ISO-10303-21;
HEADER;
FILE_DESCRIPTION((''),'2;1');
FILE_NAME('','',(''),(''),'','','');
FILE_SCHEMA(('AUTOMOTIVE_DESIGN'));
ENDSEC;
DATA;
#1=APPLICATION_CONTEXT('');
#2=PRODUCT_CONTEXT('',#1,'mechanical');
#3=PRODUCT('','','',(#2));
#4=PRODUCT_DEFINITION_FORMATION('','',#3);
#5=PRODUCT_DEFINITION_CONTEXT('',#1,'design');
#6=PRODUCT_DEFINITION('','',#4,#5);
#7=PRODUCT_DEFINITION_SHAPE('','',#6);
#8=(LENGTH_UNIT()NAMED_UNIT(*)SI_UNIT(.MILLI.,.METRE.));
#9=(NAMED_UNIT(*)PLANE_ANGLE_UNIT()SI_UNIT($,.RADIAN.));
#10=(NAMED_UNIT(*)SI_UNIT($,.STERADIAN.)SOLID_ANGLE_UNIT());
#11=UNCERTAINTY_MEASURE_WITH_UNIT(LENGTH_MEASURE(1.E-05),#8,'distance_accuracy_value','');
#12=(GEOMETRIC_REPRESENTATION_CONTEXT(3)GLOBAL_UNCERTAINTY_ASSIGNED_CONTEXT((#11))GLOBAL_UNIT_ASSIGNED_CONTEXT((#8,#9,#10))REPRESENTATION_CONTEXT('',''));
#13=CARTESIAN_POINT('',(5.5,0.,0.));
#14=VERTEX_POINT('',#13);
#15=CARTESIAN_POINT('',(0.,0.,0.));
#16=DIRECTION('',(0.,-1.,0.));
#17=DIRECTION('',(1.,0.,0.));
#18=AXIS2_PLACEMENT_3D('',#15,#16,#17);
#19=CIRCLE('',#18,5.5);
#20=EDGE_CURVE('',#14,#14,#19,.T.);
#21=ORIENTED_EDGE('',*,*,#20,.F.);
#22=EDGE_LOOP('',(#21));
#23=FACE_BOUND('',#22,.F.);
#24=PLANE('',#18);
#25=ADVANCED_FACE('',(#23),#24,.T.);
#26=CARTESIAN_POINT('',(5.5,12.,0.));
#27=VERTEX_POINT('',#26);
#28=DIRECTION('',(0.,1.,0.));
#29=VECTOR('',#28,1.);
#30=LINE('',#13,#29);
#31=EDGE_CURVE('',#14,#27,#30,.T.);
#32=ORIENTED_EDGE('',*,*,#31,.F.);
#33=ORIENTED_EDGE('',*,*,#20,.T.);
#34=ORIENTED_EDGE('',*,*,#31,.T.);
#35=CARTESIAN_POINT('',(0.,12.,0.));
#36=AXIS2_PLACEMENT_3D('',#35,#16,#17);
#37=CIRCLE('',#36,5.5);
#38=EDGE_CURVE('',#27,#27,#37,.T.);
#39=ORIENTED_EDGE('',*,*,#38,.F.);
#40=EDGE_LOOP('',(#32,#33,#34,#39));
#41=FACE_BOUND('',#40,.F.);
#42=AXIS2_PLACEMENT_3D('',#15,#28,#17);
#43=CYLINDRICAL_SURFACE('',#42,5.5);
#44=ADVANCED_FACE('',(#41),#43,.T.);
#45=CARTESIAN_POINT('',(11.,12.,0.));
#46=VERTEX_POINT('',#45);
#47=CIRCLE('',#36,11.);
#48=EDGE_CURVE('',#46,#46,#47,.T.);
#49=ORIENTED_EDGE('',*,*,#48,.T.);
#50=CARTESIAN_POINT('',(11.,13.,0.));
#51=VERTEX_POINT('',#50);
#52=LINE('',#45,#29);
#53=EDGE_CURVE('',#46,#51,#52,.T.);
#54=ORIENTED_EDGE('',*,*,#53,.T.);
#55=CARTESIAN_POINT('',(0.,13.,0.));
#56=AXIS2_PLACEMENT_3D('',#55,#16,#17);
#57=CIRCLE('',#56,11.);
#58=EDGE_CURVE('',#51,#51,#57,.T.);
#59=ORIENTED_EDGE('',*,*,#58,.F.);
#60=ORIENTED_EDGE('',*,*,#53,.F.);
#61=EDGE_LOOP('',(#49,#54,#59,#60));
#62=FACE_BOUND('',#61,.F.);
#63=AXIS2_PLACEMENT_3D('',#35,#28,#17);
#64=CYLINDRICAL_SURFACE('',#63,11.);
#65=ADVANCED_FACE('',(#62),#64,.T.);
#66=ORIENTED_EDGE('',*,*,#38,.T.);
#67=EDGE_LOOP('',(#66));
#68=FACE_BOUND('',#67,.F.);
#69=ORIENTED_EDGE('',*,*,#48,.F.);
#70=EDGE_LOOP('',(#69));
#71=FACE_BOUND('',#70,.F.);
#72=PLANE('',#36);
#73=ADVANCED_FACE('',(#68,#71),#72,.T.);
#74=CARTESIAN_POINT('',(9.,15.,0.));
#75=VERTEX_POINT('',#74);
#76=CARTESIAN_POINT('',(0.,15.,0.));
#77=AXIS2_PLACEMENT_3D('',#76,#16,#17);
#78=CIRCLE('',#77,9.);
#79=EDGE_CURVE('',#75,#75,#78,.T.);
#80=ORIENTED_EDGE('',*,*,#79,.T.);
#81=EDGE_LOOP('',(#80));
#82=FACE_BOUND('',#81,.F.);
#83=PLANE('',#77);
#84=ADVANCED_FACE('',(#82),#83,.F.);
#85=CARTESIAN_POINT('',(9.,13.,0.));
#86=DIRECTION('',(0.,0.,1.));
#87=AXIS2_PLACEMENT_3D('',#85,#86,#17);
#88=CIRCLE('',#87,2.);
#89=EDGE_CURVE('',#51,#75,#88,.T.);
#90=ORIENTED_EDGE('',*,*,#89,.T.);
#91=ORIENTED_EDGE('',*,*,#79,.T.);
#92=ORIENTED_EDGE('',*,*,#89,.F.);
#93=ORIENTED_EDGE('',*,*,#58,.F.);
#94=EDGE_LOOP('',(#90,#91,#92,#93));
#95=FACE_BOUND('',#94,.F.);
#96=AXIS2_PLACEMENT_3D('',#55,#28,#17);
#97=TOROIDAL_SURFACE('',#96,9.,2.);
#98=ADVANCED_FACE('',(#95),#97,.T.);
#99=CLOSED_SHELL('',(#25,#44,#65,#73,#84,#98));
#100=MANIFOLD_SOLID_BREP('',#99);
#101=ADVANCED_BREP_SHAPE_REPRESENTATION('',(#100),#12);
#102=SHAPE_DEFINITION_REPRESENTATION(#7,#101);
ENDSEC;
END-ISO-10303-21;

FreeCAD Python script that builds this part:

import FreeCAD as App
import Part
import Sketcher

V = App.Vector
Q = App.Units.Quantity


def edges_at(feature, points):
    """Names of the edges that pass closest to the given points."""
    edges = feature.Shape.Edges
    near = lambda p: min(range(len(edges)), key=lambda i: edges[i].distToShape(Part.Vertex(*p))[0])
    return sorted({f"Edge{near(p) + 1}" for p in points})

doc = App.newDocument("Part")
params = doc.addObject("Spreadsheet::Sheet", "Params")
for row, (alias, value) in enumerate([
    ("sketch1_width", "11 mm"),
    ("sketch1_height", "12 mm"),
    ("sketch1_height2", "3 mm"),
    ("revolution_angle", "360 deg"),
    ("fillet_radius", "2 mm"),
], start=1):
    params.set(f"A{row}", alias)
    params.set(f"B{row}", "=" + value)
    params.setAlias(f"B{row}", alias)

body = doc.addObject("PartDesign::Body", "Body")

# Sketch on XY plane
sketch1 = doc.addObject("Sketcher::SketchObject", "Sketch")
body.addObject(sketch1)
sketch1.AttachmentSupport = (doc.XY_Plane, [""])
sketch1.MapMode = "FlatFace"
sketch1.addGeometry(Part.LineSegment(V(0, 0, 0), V(5.5, 0, 0)), False)
sketch1.addGeometry(Part.LineSegment(V(5.5, 0, 0), V(5.5, 12, 0)), False)
sketch1.addGeometry(Part.LineSegment(V(5.5, 12, 0), V(11, 12, 0)), False)
sketch1.addGeometry(Part.LineSegment(V(11, 12, 0), V(11, 15, 0)), False)
sketch1.addGeometry(Part.LineSegment(V(11, 15, 0), V(0, 15, 0)), False)
sketch1.addGeometry(Part.LineSegment(V(0, 15, 0), V(0, 0, 0)), False)
sketch1.addConstraint(Sketcher.Constraint("Coincident", 0, 2, 1, 1))
sketch1.addConstraint(Sketcher.Constraint("Coincident", 1, 2, 2, 1))
sketch1.addConstraint(Sketcher.Constraint("Coincident", 2, 2, 3, 1))
sketch1.addConstraint(Sketcher.Constraint("Coincident", 3, 2, 4, 1))
sketch1.addConstraint(Sketcher.Constraint("Coincident", 4, 2, 5, 1))
sketch1.addConstraint(Sketcher.Constraint("Coincident", 5, 2, 0, 1))
sketch1.addConstraint(Sketcher.Constraint("Horizontal", 0))
sketch1.addConstraint(Sketcher.Constraint("Vertical", 1))
sketch1.addConstraint(Sketcher.Constraint("Horizontal", 2))
sketch1.addConstraint(Sketcher.Constraint("Vertical", 3))
sketch1.addConstraint(Sketcher.Constraint("Horizontal", 4))
sketch1.addConstraint(Sketcher.Constraint("Vertical", 5))
sketch1.addConstraint(Sketcher.Constraint("Coincident", 5, 2, -1, 1))
sketch1.addConstraint(Sketcher.Constraint("Equal", 0, 2))
sketch1.addConstraint(Sketcher.Constraint("DistanceX", 4, 2, 4, 1, Q("11 mm")))
sketch1.addConstraint(Sketcher.Constraint("DistanceY", 1, 1, 1, 2, Q("12 mm")))
sketch1.addConstraint(Sketcher.Constraint("DistanceY", 3, 1, 3, 2, Q("3 mm")))
sketch1.setExpression("Constraints[14]", "Params.sketch1_width")
sketch1.setExpression("Constraints[15]", "Params.sketch1_height")
sketch1.setExpression("Constraints[16]", "Params.sketch1_height2")
revolution = doc.addObject("PartDesign::Revolution", "Revolution")
body.addObject(revolution)
revolution.Profile = sketch1
revolution.ReferenceAxis = (sketch1, ["V_Axis"])
revolution.setExpression("Angle", "Params.revolution_angle")
doc.recompute()

fillet = doc.addObject("PartDesign::Fillet", "Fillet")
body.addObject(fillet)
fillet.Base = (revolution, edges_at(revolution, [(-11, 15, 0)]))
fillet.setExpression("Radius", "Params.fillet_radius")

doc.recompute()
